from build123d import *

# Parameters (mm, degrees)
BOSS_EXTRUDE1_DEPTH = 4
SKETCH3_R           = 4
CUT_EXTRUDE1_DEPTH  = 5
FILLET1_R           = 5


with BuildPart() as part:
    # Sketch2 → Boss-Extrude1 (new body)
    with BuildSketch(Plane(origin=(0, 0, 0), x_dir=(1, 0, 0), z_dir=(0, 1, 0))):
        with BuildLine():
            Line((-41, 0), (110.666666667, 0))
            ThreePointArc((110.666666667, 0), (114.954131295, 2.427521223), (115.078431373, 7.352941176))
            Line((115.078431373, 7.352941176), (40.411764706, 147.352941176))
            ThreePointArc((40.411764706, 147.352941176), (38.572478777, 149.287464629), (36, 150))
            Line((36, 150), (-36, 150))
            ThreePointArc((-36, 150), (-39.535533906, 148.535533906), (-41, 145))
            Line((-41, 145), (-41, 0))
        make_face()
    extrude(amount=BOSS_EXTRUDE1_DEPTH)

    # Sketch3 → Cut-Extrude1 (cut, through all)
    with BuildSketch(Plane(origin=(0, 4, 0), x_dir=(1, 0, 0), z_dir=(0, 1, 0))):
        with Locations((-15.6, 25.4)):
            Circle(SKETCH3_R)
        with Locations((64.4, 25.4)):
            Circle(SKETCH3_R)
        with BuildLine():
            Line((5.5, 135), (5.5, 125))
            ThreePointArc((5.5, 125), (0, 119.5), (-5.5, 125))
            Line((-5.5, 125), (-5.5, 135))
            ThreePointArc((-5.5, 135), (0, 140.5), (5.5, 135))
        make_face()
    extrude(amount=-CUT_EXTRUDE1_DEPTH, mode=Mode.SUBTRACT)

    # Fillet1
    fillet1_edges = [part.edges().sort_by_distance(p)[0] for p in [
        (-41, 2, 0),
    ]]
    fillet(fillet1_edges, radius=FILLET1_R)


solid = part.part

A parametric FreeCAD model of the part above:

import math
import FreeCAD as App
import Part
import Sketcher

V = App.Vector
Q = App.Units.Quantity


def edges_at(feature, points):
    """Names of the edges that pass closest to the given points."""
    edges = feature.Shape.Edges
    near = lambda p: min(range(len(edges)), key=lambda i: edges[i].distToShape(Part.Vertex(*p))[0])
    return sorted({f"Edge{near(p) + 1}" for p in points})

doc = App.newDocument("Part")
body = doc.addObject("PartDesign::Body", "Body")

# Sketch on XZ plane
sketch1 = body.newObject("Sketcher::SketchObject", "Sketch")
sketch1.AttachmentSupport = (doc.getObject("XZ_Plane"), [""])
sketch1.MapMode = "FlatFace"
sketch1.addGeometry([
    Part.LineSegment(V(-41, 0, 0), V(110.7, 0, 0)),  # 0
    Part.ArcOfCircle(Part.Circle(V(110.7, -5, 0), V(0, 0, 1), 5), math.radians(-28), math.radians(90)),  # 1
    Part.LineSegment(V(115.1, -7.4, 0), V(40.4, -147.4, 0)),  # 2
    Part.ArcOfCircle(Part.Circle(V(36, -145, 0), V(0, 0, 1), 5), math.radians(-90), math.radians(-28)),  # 3
    Part.LineSegment(V(36, -150, 0), V(-36, -150, 0)),  # 4
    Part.ArcOfCircle(Part.Circle(V(-36, -145, 0), V(0, 0, 1), 5), math.radians(180), math.radians(270)),  # 5
    Part.LineSegment(V(-41, -145, 0), V(-41, 0, 0)),  # 6
], False)
sketch1.addConstraint([
    Sketcher.Constraint("Tangent", 0, 2, 1, 2),
    Sketcher.Constraint("Tangent", 1, 1, 2, 1),
    Sketcher.Constraint("Tangent", 2, 2, 3, 2),
    Sketcher.Constraint("Tangent", 3, 1, 4, 1),
    Sketcher.Constraint("Tangent", 4, 2, 5, 2),
    Sketcher.Constraint("Tangent", 5, 1, 6, 1),
    Sketcher.Constraint("Coincident", 6, 2, 0, 1),
    Sketcher.Constraint("Horizontal", 0),
    Sketcher.Constraint("Horizontal", 4),
    Sketcher.Constraint("Vertical", 6),
    Sketcher.Constraint("Equal", 1, 3),
    Sketcher.Constraint("Equal", 3, 5),
    Sketcher.Constraint("PointOnObject", 0, 2, -1),
    Sketcher.Constraint("Radius", 1, Q("5 mm")),
    Sketcher.Constraint("DistanceX", 4, 2, 4, 1, Q("72 mm")),
    Sketcher.Constraint("DistanceY", 6, 1, 6, 2, Q("145 mm")),
    Sketcher.Constraint("DistanceX", -1, 1, 3, 3, Q("36 mm")),
    Sketcher.Constraint("DistanceX", 2, 2, 1, 3, Q("70.254902 mm")),
])
pad1 = body.newObject("PartDesign::Pad", "Pad")
pad1.Profile = sketch1
pad1.Length = 4
pad1.Reversed = True

# Sketch on XZ plane
sketch2 = body.newObject("Sketcher::SketchObject", "Sketch001")
sketch2.AttachmentSupport = (doc.getObject("XZ_Plane"), [""])
sketch2.MapMode = "FlatFace"
sketch2.AttachmentOffset = App.Placement(V(0, 0, -4), App.Rotation())
sketch2.addGeometry([
    Part.Circle(V(-15.6, -25.4, 0), V(0, 0, 1), 4),  # 0
    Part.Circle(V(64.4, -25.4, 0), V(0, 0, 1), 4),  # 1
    Part.LineSegment(V(5.5, -125, 0), V(5.5, -135, 0)),  # 2
    Part.ArcOfCircle(Part.Circle(V(0, -135, 0), V(0, 0, 1), 5.5), math.radians(180), math.radians(360)),  # 3
    Part.LineSegment(V(-5.5, -135, 0), V(-5.5, -125, 0)),  # 4
    Part.ArcOfCircle(Part.Circle(V(0, -125, 0), V(0, 0, 1), 5.5), math.radians(0), math.radians(180)),  # 5
], False)
sketch2.addConstraint([
    Sketcher.Constraint("Tangent", 2, 2, 3, 2),
    Sketcher.Constraint("Tangent", 3, 1, 4, 1),
    Sketcher.Constraint("Tangent", 4, 2, 5, 2),
    Sketcher.Constraint("Tangent", 5, 1, 2, 1),
    Sketcher.Constraint("Vertical", 2),
    Sketcher.Constraint("Vertical", 4),
    Sketcher.Constraint("Equal", 0, 1),
    Sketcher.Constraint("PointOnObject", 3, 3, -2),
    Sketcher.Constraint("Horizontal", 0, 3, 1, 3),
    Sketcher.Constraint("Diameter", 0, Q("8 mm")),
    Sketcher.Constraint("Radius", 3, Q("5.5 mm")),
    Sketcher.Constraint("DistanceY", 2, 2, 2, 1, Q("10 mm")),
    Sketcher.Constraint("DistanceY", 3, 3, -1, 1, Q("135 mm")),
    Sketcher.Constraint("DistanceX", 0, 3, 1, 3, Q("80 mm")),
    Sketcher.Constraint("DistanceX", 0, 3, -1, 1, Q("15.6 mm")),
    Sketcher.Constraint("DistanceY", 0, 3, -1, 1, Q("25.4 mm")),
])
pocket1 = body.newObject("PartDesign::Pocket", "Pocket")
pocket1.Profile = sketch2
pocket1.Type = "ThroughAll"
pocket1.Reversed = True
doc.recompute()

fillet = body.newObject("PartDesign::Fillet", "Fillet")
fillet.Base = (pocket1, edges_at(pocket1, [(-41, 2, 0)]))
fillet.Radius = 5

doc.recompute()
